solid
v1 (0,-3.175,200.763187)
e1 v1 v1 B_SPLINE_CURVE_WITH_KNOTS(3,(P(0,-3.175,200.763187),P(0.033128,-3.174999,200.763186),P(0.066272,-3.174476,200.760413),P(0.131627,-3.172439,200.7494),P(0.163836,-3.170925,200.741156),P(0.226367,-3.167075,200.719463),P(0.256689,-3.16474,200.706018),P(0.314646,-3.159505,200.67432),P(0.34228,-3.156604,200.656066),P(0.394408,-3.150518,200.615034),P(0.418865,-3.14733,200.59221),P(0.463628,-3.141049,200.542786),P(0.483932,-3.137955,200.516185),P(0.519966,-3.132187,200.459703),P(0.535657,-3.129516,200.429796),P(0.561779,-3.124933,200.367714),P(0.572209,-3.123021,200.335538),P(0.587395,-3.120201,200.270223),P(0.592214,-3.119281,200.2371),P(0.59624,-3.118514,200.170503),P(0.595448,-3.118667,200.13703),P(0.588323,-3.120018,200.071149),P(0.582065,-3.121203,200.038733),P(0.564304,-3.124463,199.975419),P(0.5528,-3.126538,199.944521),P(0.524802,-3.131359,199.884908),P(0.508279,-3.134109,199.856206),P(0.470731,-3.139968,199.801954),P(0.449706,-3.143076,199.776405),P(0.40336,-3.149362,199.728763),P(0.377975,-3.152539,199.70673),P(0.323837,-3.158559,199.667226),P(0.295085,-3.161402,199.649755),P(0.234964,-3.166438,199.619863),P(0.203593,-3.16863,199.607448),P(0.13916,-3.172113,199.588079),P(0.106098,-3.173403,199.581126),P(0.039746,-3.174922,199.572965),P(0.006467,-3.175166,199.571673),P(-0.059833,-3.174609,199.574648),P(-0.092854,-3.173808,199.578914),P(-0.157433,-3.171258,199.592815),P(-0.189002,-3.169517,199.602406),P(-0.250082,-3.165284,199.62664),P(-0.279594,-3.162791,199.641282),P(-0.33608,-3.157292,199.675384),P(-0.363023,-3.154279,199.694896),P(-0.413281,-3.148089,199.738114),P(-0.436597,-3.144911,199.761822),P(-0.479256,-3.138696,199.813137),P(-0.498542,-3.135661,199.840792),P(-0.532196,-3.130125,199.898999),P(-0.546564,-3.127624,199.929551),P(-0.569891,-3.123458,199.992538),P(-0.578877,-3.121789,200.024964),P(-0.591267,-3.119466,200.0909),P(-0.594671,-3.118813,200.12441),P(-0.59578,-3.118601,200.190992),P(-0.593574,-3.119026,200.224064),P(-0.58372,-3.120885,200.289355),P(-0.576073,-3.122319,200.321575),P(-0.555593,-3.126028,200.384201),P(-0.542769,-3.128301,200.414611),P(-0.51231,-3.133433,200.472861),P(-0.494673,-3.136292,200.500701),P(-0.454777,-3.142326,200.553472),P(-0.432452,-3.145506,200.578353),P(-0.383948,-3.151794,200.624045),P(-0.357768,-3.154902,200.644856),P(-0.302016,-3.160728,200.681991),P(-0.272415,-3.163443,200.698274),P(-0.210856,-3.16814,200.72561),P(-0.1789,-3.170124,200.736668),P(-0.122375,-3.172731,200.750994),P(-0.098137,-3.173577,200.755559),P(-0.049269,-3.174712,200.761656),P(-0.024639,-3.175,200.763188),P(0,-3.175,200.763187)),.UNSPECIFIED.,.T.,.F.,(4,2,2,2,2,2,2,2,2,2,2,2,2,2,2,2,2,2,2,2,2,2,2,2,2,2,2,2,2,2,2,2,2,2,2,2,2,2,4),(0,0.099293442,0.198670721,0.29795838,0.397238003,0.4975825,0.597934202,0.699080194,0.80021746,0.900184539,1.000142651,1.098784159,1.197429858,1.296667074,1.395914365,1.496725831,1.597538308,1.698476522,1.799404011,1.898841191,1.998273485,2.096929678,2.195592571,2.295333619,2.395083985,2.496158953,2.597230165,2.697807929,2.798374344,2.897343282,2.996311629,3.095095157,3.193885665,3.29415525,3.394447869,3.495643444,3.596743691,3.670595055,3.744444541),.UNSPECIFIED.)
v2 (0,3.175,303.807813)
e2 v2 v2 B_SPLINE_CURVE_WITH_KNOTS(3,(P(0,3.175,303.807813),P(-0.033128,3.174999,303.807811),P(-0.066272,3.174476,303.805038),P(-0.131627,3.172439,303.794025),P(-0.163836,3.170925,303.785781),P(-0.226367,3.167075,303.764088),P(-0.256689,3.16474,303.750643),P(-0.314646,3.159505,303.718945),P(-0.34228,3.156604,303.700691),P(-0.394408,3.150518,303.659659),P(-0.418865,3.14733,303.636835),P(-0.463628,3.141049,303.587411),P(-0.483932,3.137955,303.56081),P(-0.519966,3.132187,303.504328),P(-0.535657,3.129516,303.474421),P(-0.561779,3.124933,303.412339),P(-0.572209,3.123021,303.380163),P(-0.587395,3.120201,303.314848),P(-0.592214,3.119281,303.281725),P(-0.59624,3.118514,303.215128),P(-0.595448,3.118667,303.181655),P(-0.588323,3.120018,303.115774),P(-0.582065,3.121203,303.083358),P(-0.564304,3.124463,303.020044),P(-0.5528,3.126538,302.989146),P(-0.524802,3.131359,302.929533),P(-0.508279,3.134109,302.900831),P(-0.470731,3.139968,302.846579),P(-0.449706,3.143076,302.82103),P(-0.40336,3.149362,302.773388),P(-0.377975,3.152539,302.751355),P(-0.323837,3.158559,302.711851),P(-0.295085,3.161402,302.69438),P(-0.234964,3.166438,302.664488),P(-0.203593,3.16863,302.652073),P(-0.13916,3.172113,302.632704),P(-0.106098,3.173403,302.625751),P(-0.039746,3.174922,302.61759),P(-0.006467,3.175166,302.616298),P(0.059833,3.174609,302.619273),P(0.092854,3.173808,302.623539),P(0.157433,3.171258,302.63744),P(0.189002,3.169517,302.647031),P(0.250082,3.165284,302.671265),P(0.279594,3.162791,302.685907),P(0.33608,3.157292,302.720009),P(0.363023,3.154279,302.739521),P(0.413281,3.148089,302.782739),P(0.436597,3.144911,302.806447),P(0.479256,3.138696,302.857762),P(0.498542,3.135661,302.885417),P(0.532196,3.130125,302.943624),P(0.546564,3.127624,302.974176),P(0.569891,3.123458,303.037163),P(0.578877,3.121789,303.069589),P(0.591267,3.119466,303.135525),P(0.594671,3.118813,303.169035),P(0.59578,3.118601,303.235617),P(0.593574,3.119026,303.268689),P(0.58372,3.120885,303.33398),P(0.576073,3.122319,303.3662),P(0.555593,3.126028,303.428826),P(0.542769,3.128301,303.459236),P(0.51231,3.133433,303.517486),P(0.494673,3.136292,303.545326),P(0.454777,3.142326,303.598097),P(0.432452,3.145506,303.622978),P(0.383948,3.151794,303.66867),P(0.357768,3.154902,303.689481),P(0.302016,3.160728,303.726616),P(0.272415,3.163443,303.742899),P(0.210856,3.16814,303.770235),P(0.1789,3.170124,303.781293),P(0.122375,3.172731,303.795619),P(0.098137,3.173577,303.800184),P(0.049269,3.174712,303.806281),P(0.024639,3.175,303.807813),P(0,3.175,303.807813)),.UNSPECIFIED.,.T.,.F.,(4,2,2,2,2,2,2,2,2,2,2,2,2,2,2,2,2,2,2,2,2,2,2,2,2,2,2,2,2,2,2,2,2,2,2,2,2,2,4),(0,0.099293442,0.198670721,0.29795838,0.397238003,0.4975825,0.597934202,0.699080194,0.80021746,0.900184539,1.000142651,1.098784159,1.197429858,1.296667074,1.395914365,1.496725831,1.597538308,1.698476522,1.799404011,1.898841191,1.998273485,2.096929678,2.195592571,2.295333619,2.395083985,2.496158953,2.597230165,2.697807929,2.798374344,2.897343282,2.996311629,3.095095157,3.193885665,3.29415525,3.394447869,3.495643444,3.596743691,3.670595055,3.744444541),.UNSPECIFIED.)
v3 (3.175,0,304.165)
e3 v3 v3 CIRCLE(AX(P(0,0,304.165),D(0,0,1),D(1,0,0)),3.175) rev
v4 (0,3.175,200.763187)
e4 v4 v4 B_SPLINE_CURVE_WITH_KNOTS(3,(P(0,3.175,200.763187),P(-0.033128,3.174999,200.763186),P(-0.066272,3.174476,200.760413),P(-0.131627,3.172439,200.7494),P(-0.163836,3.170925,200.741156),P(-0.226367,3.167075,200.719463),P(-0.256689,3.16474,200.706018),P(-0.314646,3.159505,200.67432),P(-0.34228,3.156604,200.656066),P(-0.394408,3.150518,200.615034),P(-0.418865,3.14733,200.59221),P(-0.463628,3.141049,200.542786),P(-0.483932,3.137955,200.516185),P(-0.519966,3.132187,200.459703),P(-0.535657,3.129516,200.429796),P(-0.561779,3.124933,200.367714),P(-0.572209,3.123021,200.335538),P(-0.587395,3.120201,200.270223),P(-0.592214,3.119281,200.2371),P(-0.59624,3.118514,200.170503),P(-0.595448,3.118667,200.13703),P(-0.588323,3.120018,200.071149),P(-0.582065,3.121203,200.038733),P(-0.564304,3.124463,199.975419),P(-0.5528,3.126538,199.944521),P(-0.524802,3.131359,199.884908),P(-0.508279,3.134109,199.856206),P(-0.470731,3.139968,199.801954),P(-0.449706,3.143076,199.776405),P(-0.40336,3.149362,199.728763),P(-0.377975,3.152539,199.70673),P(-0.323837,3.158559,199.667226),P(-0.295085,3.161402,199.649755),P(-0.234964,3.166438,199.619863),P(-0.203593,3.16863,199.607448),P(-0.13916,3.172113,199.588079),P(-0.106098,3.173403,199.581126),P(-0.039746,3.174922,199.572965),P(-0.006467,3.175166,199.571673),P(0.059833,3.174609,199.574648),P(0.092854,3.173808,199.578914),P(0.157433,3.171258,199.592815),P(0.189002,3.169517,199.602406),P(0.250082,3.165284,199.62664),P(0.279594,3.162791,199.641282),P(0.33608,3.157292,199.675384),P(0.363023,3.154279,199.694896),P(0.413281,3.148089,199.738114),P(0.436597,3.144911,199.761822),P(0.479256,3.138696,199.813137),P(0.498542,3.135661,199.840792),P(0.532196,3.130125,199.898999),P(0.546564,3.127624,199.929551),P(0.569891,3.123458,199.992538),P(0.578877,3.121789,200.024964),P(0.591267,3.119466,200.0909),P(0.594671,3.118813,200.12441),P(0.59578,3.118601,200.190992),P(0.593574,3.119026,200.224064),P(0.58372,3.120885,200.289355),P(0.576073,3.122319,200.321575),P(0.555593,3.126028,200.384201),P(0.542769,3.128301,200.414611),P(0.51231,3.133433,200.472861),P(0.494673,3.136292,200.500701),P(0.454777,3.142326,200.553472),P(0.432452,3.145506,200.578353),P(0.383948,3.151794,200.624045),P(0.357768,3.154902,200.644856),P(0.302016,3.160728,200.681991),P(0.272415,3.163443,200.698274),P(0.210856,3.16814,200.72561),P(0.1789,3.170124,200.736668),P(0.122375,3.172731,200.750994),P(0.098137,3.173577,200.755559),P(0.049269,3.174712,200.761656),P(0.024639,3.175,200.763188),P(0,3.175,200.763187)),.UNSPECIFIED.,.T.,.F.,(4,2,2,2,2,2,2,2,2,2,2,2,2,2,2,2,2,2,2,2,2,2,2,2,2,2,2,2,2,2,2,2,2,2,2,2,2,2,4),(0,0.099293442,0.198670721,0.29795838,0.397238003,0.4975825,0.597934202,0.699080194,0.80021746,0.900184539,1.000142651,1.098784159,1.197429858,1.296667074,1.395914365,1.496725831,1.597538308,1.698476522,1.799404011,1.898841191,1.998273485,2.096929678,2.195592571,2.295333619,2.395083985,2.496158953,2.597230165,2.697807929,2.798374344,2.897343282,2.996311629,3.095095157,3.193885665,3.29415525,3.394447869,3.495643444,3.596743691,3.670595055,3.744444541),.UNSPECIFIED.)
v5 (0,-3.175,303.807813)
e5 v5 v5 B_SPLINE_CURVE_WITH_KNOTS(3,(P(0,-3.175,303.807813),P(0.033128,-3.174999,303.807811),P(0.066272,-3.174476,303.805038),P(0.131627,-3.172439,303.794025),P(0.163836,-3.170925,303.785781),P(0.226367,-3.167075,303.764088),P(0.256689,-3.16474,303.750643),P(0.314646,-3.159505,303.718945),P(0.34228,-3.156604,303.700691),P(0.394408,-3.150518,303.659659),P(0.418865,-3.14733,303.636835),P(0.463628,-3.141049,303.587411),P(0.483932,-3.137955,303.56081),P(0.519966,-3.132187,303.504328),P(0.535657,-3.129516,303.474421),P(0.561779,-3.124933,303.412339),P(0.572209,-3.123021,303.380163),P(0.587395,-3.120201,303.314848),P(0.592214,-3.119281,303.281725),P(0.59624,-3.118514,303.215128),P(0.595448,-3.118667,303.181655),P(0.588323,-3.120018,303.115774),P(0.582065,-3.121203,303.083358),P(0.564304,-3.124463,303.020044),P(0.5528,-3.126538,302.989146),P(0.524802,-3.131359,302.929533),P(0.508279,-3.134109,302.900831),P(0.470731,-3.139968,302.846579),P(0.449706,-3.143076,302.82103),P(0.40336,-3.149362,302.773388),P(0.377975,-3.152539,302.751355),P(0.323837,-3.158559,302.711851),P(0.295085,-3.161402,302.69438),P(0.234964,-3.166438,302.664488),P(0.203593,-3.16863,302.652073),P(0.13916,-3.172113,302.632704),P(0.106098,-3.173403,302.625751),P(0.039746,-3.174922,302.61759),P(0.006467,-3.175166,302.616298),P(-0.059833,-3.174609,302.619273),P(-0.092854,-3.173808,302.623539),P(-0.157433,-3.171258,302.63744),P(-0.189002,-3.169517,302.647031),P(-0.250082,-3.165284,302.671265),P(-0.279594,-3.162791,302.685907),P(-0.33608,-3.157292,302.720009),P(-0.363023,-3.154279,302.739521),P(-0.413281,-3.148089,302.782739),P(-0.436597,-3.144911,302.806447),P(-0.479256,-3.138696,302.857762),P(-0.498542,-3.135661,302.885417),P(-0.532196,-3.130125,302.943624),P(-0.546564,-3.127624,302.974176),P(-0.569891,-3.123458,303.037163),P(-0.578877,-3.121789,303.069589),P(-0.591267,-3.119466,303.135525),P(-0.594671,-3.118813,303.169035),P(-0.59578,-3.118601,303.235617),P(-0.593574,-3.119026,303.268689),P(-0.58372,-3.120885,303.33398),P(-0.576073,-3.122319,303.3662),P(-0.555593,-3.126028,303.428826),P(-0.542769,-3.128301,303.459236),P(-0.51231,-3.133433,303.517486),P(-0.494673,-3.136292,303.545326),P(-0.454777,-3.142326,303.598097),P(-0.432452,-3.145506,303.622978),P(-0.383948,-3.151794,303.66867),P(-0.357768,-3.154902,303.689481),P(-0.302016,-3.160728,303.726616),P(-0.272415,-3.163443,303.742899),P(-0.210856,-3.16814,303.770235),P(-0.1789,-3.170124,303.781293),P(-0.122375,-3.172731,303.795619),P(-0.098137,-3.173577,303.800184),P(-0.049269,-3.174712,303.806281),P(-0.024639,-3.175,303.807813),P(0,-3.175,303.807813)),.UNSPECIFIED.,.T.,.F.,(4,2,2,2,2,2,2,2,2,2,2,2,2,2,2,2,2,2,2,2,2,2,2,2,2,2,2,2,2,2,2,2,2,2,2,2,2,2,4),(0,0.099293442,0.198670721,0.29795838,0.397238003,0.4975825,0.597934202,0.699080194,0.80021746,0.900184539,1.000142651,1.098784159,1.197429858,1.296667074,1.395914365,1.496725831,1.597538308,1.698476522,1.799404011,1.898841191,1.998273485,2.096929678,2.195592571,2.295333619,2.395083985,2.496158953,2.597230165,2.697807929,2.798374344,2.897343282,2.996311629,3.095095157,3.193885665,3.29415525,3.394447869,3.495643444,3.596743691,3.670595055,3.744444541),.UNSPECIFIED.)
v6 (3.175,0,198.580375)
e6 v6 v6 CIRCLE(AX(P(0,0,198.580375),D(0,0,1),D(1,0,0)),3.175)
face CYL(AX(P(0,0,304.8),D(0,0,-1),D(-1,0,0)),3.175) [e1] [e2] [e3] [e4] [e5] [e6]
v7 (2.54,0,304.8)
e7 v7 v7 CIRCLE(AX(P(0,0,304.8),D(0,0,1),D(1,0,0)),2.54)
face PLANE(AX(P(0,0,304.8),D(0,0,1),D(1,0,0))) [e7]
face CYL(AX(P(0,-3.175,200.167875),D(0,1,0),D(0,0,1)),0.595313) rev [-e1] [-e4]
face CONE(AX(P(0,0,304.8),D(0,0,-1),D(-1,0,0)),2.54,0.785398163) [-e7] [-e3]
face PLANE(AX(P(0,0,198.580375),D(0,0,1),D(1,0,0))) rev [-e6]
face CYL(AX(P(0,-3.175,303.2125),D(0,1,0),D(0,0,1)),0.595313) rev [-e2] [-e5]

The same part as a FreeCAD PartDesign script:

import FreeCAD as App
import Part
import Sketcher
Q = App.Units.Quantity


def edges_at(feature, points):
    """Names of the edges that pass closest to the given points."""
    edges = feature.Shape.Edges
    near = lambda p: min(range(len(edges)), key=lambda i: edges[i].distToShape(Part.Vertex(*p))[0])
    return sorted({f"Edge{near(p) + 1}" for p in points})

doc = App.newDocument("Part")
body = doc.addObject("PartDesign::Body", "Body")

sketch1 = body.newObject("Sketcher::SketchObject", "Sketch")
sketch1.AttachmentSupport = (doc.getObject("XY_Plane"), [""])
sketch1.MapMode = "FlatFace"
sketch1.addGeometry(Part.Circle(App.Vector(0, 0, 0), App.Vector(0, 0, 1), 3.2), False)
sketch1.addConstraint(Sketcher.Constraint("Coincident", 0, 3, -1, 1))
sketch1.addConstraint(Sketcher.Constraint("Diameter", 0, Q("0.25 in")))
pad1 = body.newObject("PartDesign::Pad", "Pad")
pad1.Profile = sketch1
pad1.Length = Q("24 in")
pad1.Midplane = True
doc.recompute()

chamfer = body.newObject("PartDesign::Chamfer", "Chamfer")
chamfer.Base = (pad1, edges_at(pad1, [(-3.175, 0, -304.8), (-3.175, 0, 304.8)]))
chamfer.Size = Q("0.025 in")

sketch2 = body.newObject("Sketcher::SketchObject", "Sketch001")
sketch2.AttachmentSupport = (doc.getObject("XY_Plane"), [""])
sketch2.MapMode = "FlatFace"
sketch2.AttachmentOffset = App.Placement(App.Vector(0, 0, 198.580375), App.Rotation())
sketch2.addGeometry(Part.Circle(App.Vector(0, 0, 0), App.Vector(0, 0, 1), 3.2), False)
sketch2.addConstraint(Sketcher.Constraint("Coincident", 0, 3, -1, 1))
sketch2.addConstraint(Sketcher.Constraint("Diameter", 0, Q("0.25 in")))
pocket1 = body.newObject("PartDesign::Pocket", "Pocket")
pocket1.Profile = sketch2
pocket1.Type = "ThroughAll"

sketch3 = body.newObject("Sketcher::SketchObject", "Sketch002")
sketch3.AttachmentSupport = (doc.getObject("XZ_Plane"), [""])
sketch3.MapMode = "FlatFace"
sketch3.addGeometry(Part.Circle(App.Vector(0, 200.2, 0), App.Vector(0, 0, 1), 0.6), False)
sketch3.addGeometry(Part.Circle(App.Vector(0, 303.2, 0), App.Vector(0, 0, 1), 0.6), False)
sketch3.addConstraint(Sketcher.Constraint("Equal", 0, 1))
sketch3.addConstraint(Sketcher.Constraint("PointOnObject", 0, 3, -2))
sketch3.addConstraint(Sketcher.Constraint("PointOnObject", 1, 3, -2))
sketch3.addConstraint(Sketcher.Constraint("Diameter", 0, Q("0.046875 in")))
sketch3.addConstraint(Sketcher.Constraint("DistanceY", -1, 1, 1, 3, Q("11.9375 in")))
sketch3.addConstraint(Sketcher.Constraint("DistanceY", -1, 1, 0, 3, Q("200.167875 mm")))
pocket2 = body.newObject("PartDesign::Pocket", "Pocket001")
pocket2.Profile = sketch3
pocket2.Type = "ThroughAll"
pocket2.Midplane = True

doc.recompute()
